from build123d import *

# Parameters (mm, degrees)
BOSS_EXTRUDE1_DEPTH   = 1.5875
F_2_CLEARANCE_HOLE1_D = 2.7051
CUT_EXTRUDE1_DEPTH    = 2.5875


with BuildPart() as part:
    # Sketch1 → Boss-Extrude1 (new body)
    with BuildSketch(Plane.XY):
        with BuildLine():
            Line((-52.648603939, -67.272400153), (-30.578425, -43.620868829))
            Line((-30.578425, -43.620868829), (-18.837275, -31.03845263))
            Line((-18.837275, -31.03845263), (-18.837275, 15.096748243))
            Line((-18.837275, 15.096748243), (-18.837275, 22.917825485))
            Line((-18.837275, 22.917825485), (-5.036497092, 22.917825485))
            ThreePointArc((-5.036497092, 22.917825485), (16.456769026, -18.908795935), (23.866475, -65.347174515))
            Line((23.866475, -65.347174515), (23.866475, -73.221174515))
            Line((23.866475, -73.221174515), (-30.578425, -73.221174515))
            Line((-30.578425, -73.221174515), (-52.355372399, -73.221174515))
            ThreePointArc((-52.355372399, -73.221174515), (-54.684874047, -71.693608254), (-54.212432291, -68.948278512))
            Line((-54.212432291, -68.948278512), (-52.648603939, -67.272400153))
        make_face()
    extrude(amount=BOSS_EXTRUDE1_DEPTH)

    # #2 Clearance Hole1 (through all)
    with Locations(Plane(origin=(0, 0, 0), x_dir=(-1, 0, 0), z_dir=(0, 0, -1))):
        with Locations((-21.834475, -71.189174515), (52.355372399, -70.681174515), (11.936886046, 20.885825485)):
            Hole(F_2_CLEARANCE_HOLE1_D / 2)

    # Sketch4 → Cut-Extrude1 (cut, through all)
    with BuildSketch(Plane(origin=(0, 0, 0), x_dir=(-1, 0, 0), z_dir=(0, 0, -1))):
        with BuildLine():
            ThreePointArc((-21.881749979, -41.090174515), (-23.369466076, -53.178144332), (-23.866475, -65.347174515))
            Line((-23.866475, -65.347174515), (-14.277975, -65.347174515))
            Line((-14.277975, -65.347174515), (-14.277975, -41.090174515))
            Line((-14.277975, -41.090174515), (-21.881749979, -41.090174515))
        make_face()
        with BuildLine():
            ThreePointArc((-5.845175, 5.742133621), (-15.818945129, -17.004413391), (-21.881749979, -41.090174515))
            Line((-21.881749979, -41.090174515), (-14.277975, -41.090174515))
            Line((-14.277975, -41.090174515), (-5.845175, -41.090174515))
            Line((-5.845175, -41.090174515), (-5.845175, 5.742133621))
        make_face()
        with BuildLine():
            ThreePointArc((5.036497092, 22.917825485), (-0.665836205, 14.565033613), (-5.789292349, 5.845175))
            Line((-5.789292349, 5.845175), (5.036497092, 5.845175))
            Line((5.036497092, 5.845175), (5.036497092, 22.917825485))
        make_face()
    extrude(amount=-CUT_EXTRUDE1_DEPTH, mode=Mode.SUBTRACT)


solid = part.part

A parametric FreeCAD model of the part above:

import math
import FreeCAD as App
import Part
import Sketcher
from FreeCAD import Vector
Q = App.Units.Quantity

doc = App.newDocument("Part")
body = doc.addObject("PartDesign::Body", "Body")

sketch1 = body.newObject("Sketcher::SketchObject", "Sketch")
sketch1.AttachmentSupport = (doc.getObject("XY_Plane"), [""])
sketch1.MapMode = "FlatFace"
sketch1.addGeometry(Part.LineSegment(Vector(-30.6, -43.6, 0), Vector(-52.6, -67.3, 0)), False)
sketch1.addGeometry(Part.LineSegment(Vector(-52.6, -67.3, 0), Vector(-54.2, -68.9, 0)), False)
sketch1.addGeometry(Part.ArcOfCircle(Part.Circle(Vector(-52.4, -70.7, 0), Vector(0, 0, 1), 2.5), math.radians(137), math.radians(270)), False)
sketch1.addGeometry(Part.LineSegment(Vector(-52.4, -73.2, 0), Vector(23.9, -73.2, 0)), False)
sketch1.addGeometry(Part.LineSegment(Vector(23.9, -73.2, 0), Vector(23.9, -65.3, 0)), False)
sketch1.addGeometry(Part.ArcOfCircle(Part.Circle(Vector(-125.4, -65.3, 0), Vector(0, 0, 1), 149.2), math.radians(0), math.radians(36)), False)
sketch1.addGeometry(Part.LineSegment(Vector(-5, 22.9, 0), Vector(-18.8, 22.9, 0)), False)
sketch1.addGeometry(Part.LineSegment(Vector(-18.8, 22.9, 0), Vector(-18.8, -31, 0)), False)
sketch1.addGeometry(Part.LineSegment(Vector(-18.8, -31, 0), Vector(-30.6, -43.6, 0)), False)
sketch1.addConstraint(Sketcher.Constraint("Coincident", 0, 2, 1, 1))
sketch1.addConstraint(Sketcher.Constraint("Tangent", 1, 2, 2, 1))
sketch1.addConstraint(Sketcher.Constraint("Tangent", 2, 2, 3, 1))
sketch1.addConstraint(Sketcher.Constraint("Coincident", 3, 2, 4, 1))
sketch1.addConstraint(Sketcher.Constraint("Tangent", 4, 2, 5, 1))
sketch1.addConstraint(Sketcher.Constraint("Coincident", 5, 2, 6, 1))
sketch1.addConstraint(Sketcher.Constraint("Coincident", 6, 2, 7, 1))
sketch1.addConstraint(Sketcher.Constraint("Coincident", 7, 2, 8, 1))
sketch1.addConstraint(Sketcher.Constraint("Coincident", 8, 2, 0, 1))
sketch1.addConstraint(Sketcher.Constraint("Horizontal", 3))
sketch1.addConstraint(Sketcher.Constraint("Vertical", 4))
sketch1.addConstraint(Sketcher.Constraint("Horizontal", 6))
sketch1.addConstraint(Sketcher.Constraint("Vertical", 7))
sketch1.addConstraint(Sketcher.Constraint("Parallel", 0, 1))
sketch1.addConstraint(Sketcher.Constraint("Parallel", 1, 8))
sketch1.addConstraint(Sketcher.Constraint("Radius", 2, Q("0.1 in")))
sketch1.addConstraint(Sketcher.Constraint("Radius", 5, Q("5.875 in")))
sketch1.addConstraint(Sketcher.Constraint("DistanceY", 4, 1, 4, 2, Q("0.31 in")))
sketch1.addConstraint(Sketcher.Constraint("DistanceY", 4, 2, 5, 2, Q("3.475 in")))
sketch1.addConstraint(Sketcher.Constraint("DistanceY", 7, 2, 7, 1, Q("53.956278 mm")))
sketch1.addConstraint(Sketcher.Constraint("DistanceY", 0, 2, -1, 1, Q("67.2724 mm")))
sketch1.addConstraint(Sketcher.Constraint("Distance", 1, Q("2.292188 mm")))
sketch1.addConstraint(Sketcher.Constraint("DistanceX", 3, 1, 3, 2, Q("76.221847 mm")))
sketch1.addConstraint(Sketcher.Constraint("DistanceX", 6, 2, 6, 1, Q("13.800778 mm")))
sketch1.addConstraint(Sketcher.Constraint("DistanceY", 8, 2, -1, 1, Q("43.620869 mm")))
sketch1.addConstraint(Sketcher.Constraint("DistanceX", 2, 3, -1, 1, Q("52.355372 mm")))
pad1 = body.newObject("PartDesign::Pad", "Pad")
pad1.Profile = sketch1
pad1.Length = Q("0.0625 in")

sketch2 = body.newObject("Sketcher::SketchObject", "Sketch001")
sketch2.AttachmentSupport = (doc.getObject("XY_Plane"), [""])
sketch2.MapMode = "FlatFace"
sketch2.addGeometry(Part.Circle(Vector(21.8, -71.2, 0), Vector(0, 0, 1), 1.4), False)
sketch2.addGeometry(Part.Circle(Vector(-52.4, -70.7, 0), Vector(0, 0, 1), 1.4), False)
sketch2.addGeometry(Part.Circle(Vector(-11.9, 20.9, 0), Vector(0, 0, 1), 1.4), False)
sketch2.addConstraint(Sketcher.Constraint("Equal", 0, 1))
sketch2.addConstraint(Sketcher.Constraint("Equal", 1, 2))
sketch2.addConstraint(Sketcher.Constraint("Diameter", 0, Q("0.1065 in")))
sketch2.addConstraint(Sketcher.Constraint("DistanceY", 0, 3, 1, 3, Q("0.02 in")))
sketch2.addConstraint(Sketcher.Constraint("DistanceY", 0, 3, 2, 3, Q("3.625 in")))
sketch2.addConstraint(Sketcher.Constraint("DistanceX", 2, 3, 0, 3, Q("33.771361 mm")))
sketch2.addConstraint(Sketcher.Constraint("DistanceX", -1, 1, 0, 3, Q("21.834475 mm")))
sketch2.addConstraint(Sketcher.Constraint("DistanceY", 0, 3, -1, 1, Q("71.189175 mm")))
sketch2.addConstraint(Sketcher.Constraint("DistanceX", 1, 3, -1, 1, Q("52.355372 mm")))
doc.recompute()
hole = body.newObject("PartDesign::Hole", "Hole")
hole.Profile = sketch2
hole.ThreadType = "None"
hole.Diameter = Q("0.1065 in")
hole.DepthType = "ThroughAll"
hole.Reversed = True

sketch3 = body.newObject("Sketcher::SketchObject", "Sketch002")
sketch3.AttachmentSupport = (doc.getObject("XY_Plane"), [""])
sketch3.MapMode = "FlatFace"
sketch3.addGeometry(Part.ArcOfCircle(Part.Circle(Vector(-125, -65, 0), Vector(0, 0, 1), 149), math.radians(0), math.radians(9.36)), False)
sketch3.addGeometry(Part.LineSegment(Vector(24, -65, 0), Vector(14, -65, 0)), False)
sketch3.addGeometry(Part.LineSegment(Vector(14, -65, 0), Vector(14, -41, 0)), False)
sketch3.addGeometry(Part.LineSegment(Vector(14, -41, 0), Vector(6, -41, 0)), False)
sketch3.addGeometry(Part.LineSegment(Vector(6, -41, 0), Vector(6, 6, 0)), False)
sketch3.addGeometry(Part.ArcOfCircle(Part.Circle(Vector(-125, -65, 0), Vector(0, 0, 1), 149), math.radians(9.36), math.radians(28.45)), False)
sketch3.addGeometry(Part.ArcOfCircle(Part.Circle(Vector(-125, -65, 0), Vector(0, 0, 1), 149), math.radians(28.49), math.radians(36.26)), False)
sketch3.addGeometry(Part.LineSegment(Vector(6, 6, 0), Vector(-5, 6, 0)), False)
sketch3.addGeometry(Part.LineSegment(Vector(-5, 6, 0), Vector(-5, 23, 0)), False)
sketch3.addConstraint(Sketcher.Constraint("Coincident", 0, 1, 1, 1))
sketch3.addConstraint(Sketcher.Constraint("Coincident", 1, 2, 2, 1))
sketch3.addConstraint(Sketcher.Constraint("Coincident", 2, 2, 3, 1))
sketch3.addConstraint(Sketcher.Constraint("Coincident", 3, 2, 4, 1))
sketch3.addConstraint(Sketcher.Constraint("Coincident", 4, 2, 5, 2))
sketch3.addConstraint(Sketcher.Constraint("Tangent", 5, 1, 0, 2))
sketch3.addConstraint(Sketcher.Constraint("Coincident", 6, 1, 7, 1))
sketch3.addConstraint(Sketcher.Constraint("Coincident", 7, 2, 8, 1))
sketch3.addConstraint(Sketcher.Constraint("Coincident", 8, 2, 6, 2))
sketch3.addConstraint(Sketcher.Constraint("Horizontal", 1))
sketch3.addConstraint(Sketcher.Constraint("Vertical", 2))
sketch3.addConstraint(Sketcher.Constraint("Horizontal", 3))
sketch3.addConstraint(Sketcher.Constraint("Vertical", 4))
sketch3.addConstraint(Sketcher.Constraint("Horizontal", 7))
sketch3.addConstraint(Sketcher.Constraint("Vertical", 8))
sketch3.addConstraint(Sketcher.Constraint("Coincident", 6, 3, 0, 3))
sketch3.addConstraint(Sketcher.Constraint("Equal", 0, 5))
sketch3.addConstraint(Sketcher.Constraint("Equal", 5, 6))
sketch3.addConstraint(Sketcher.Constraint("Horizontal", 6, 3, 0, 1))
sketch3.addConstraint(Sketcher.Constraint("Horizontal", 3, 2, 5, 1))
sketch3.addConstraint(Sketcher.Constraint("Radius", 0, Q("5.875 in")))
sketch3.addConstraint(Sketcher.Constraint("DistanceX", 3, 2, 3, 1, Q("0.332 in")))
sketch3.addConstraint(Sketcher.Constraint("DistanceY", 2, 1, 2, 2, Q("0.955 in")))
sketch3.addConstraint(Sketcher.Constraint("DistanceY", 3, 2, 8, 2, Q("2.52 in")))
sketch3.addConstraint(Sketcher.Constraint("DistanceX", 1, 2, 1, 1, Q("0.3775 in")))
sketch3.addConstraint(Sketcher.Constraint("DistanceX", 6, 1, 4, 2, Q("0.0022001 in")))
sketch3.addConstraint(Sketcher.Constraint("DistanceX", -1, 1, 5, 1, Q("21.88175 mm")))
sketch3.addConstraint(Sketcher.Constraint("DistanceY", 0, 3, -1, 1, Q("65.347175 mm")))
pocket1 = body.newObject("PartDesign::Pocket", "Pocket")
pocket1.Profile = sketch3
pocket1.Type = "ThroughAll"
pocket1.Reversed = True

doc.recompute()
